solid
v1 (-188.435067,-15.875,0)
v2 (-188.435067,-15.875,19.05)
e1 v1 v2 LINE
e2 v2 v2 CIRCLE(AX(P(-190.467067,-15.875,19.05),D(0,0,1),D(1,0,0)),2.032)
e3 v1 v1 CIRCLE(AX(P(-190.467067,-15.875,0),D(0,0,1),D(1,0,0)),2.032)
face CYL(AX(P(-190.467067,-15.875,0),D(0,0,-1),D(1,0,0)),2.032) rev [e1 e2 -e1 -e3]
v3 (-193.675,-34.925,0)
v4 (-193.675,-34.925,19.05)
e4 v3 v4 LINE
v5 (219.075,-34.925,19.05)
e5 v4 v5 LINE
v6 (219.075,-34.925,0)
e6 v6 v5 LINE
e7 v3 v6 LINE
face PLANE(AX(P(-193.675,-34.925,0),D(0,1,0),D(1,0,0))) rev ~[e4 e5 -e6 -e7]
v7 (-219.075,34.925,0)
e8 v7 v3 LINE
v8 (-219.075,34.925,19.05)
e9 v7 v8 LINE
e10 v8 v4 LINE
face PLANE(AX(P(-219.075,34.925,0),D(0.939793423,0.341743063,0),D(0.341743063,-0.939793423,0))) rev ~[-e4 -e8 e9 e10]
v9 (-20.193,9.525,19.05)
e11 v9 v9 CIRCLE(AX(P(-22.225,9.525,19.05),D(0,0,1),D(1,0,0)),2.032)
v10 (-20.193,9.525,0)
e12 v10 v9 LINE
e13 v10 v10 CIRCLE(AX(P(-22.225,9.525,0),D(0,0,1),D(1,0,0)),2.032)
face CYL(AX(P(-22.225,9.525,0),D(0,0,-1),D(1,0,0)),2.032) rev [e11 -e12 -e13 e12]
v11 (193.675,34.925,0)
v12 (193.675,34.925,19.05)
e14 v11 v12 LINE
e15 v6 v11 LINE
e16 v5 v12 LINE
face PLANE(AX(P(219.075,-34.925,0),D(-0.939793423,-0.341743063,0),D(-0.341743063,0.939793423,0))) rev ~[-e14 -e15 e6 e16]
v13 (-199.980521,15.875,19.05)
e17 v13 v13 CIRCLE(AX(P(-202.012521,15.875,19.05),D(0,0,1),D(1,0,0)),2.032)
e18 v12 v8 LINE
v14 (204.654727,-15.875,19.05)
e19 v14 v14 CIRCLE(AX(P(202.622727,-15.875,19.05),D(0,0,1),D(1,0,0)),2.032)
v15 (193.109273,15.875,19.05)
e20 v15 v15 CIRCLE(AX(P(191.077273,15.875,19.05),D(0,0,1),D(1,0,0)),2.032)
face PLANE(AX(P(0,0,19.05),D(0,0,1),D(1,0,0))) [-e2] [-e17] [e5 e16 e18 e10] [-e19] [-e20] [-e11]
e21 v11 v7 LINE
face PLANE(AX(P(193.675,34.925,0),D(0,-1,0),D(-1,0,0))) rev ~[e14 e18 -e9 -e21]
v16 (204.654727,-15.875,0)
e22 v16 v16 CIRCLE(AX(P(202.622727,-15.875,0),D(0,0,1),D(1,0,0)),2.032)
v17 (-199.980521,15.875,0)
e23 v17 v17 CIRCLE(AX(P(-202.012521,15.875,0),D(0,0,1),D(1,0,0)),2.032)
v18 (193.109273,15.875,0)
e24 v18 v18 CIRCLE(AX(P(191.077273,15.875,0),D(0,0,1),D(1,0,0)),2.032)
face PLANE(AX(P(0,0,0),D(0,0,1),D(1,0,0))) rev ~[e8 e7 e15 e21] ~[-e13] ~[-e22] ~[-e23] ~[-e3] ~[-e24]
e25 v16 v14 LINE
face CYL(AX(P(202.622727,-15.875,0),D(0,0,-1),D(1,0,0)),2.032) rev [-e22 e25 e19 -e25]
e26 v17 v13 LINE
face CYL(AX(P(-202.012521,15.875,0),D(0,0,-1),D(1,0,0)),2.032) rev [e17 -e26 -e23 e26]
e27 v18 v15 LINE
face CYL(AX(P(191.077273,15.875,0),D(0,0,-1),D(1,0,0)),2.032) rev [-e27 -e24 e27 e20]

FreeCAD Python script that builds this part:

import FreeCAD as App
import Part
import Sketcher
Q = App.Units.Quantity

doc = App.newDocument("Part")
body = doc.addObject("PartDesign::Body", "Body")

# Sketch on XY plane
sketch1 = body.newObject("Sketcher::SketchObject", "Sketch")
sketch1.AttachmentSupport = (doc.getObject("XY_Plane"), [""])
sketch1.MapMode = "FlatFace"
sketch1.addGeometry(Part.LineSegment(App.Vector(193.7, 34.9, 0), App.Vector(-219.1, 34.9, 0)), False)
sketch1.addGeometry(Part.LineSegment(App.Vector(-219.1, 34.9, 0), App.Vector(-193.7, -34.9, 0)), False)
sketch1.addGeometry(Part.LineSegment(App.Vector(-193.7, -34.9, 0), App.Vector(219.1, -34.9, 0)), False)
sketch1.addGeometry(Part.LineSegment(App.Vector(219.1, -34.9, 0), App.Vector(193.7, 34.9, 0)), False)
sketch1.addGeometry(Part.Circle(App.Vector(-190.5, -15.9, 0), App.Vector(0, 0, 1), 2), False)
sketch1.addGeometry(Part.Circle(App.Vector(202.6, -15.9, 0), App.Vector(0, 0, 1), 2), False)
sketch1.addGeometry(Part.Circle(App.Vector(-202, 15.9, 0), App.Vector(0, 0, 1), 2), False)
sketch1.addGeometry(Part.Circle(App.Vector(-22.2, 9.5, 0), App.Vector(0, 0, 1), 2), False)
sketch1.addGeometry(Part.Circle(App.Vector(191.1, 15.9, 0), App.Vector(0, 0, 1), 2), False)
sketch1.addConstraint(Sketcher.Constraint("Coincident", 0, 2, 1, 1))
sketch1.addConstraint(Sketcher.Constraint("Coincident", 1, 2, 2, 1))
sketch1.addConstraint(Sketcher.Constraint("Coincident", 2, 2, 3, 1))
sketch1.addConstraint(Sketcher.Constraint("Coincident", 3, 2, 0, 1))
sketch1.addConstraint(Sketcher.Constraint("Horizontal", 0))
sketch1.addConstraint(Sketcher.Constraint("Horizontal", 2))
sketch1.addConstraint(Sketcher.Constraint("Equal", 4, 5))
sketch1.addConstraint(Sketcher.Constraint("Equal", 5, 6))
sketch1.addConstraint(Sketcher.Constraint("Equal", 6, 7))
sketch1.addConstraint(Sketcher.Constraint("Equal", 7, 8))
sketch1.addConstraint(Sketcher.Constraint("Symmetric", 0, 2, 2, 2, -1, 1))
sketch1.addConstraint(Sketcher.Constraint("Parallel", 1, 3))
sketch1.addConstraint(Sketcher.Constraint("Horizontal", 4, 3, 5, 3))
sketch1.addConstraint(Sketcher.Constraint("Horizontal", 6, 3, 8, 3))
sketch1.addConstraint(Sketcher.Constraint("Diameter", 4, Q("0.16 in")))
sketch1.addConstraint(Sketcher.Constraint("DistanceY", 4, 3, 7, 3, Q("1 in")))
sketch1.addConstraint(Sketcher.Constraint("DistanceY", 4, 3, 0, 2, Q("2 in")))
sketch1.addConstraint(Sketcher.Constraint("DistanceY", 1, 2, 6, 3, Q("2 in")))
sketch1.addConstraint(Sketcher.Constraint("DistanceX", 0, 2, 1, 2, Q("1 in")))
sketch1.addConstraint(Sketcher.Constraint("DistanceX", 0, 2, 0, 1, Q("16.25 in")))
sketch1.addConstraint(Sketcher.Constraint("DistanceX", 7, 3, 2, 2, Q("9.5 in")))
sketch1.addConstraint(Sketcher.Constraint("DistanceY", 4, 3, 6, 3, Q("1.25 in")))
sketch1.addConstraint(Sketcher.Constraint("DistanceX", 6, 3, -1, 1, 202.012521))
sketch1.addConstraint(Sketcher.Constraint("DistanceX", 6, 3, 5, 3, 404.635248))
sketch1.addConstraint(Sketcher.Constraint("DistanceX", 4, 3, 8, 3, 381.54434))
sketch1.addConstraint(Sketcher.Constraint("DistanceX", 4, 3, -1, 1, 190.467067))
pad1 = body.newObject("PartDesign::Pad", "Pad")
pad1.Profile = sketch1
pad1.Length = Q("0.75 in")

doc.recompute()
